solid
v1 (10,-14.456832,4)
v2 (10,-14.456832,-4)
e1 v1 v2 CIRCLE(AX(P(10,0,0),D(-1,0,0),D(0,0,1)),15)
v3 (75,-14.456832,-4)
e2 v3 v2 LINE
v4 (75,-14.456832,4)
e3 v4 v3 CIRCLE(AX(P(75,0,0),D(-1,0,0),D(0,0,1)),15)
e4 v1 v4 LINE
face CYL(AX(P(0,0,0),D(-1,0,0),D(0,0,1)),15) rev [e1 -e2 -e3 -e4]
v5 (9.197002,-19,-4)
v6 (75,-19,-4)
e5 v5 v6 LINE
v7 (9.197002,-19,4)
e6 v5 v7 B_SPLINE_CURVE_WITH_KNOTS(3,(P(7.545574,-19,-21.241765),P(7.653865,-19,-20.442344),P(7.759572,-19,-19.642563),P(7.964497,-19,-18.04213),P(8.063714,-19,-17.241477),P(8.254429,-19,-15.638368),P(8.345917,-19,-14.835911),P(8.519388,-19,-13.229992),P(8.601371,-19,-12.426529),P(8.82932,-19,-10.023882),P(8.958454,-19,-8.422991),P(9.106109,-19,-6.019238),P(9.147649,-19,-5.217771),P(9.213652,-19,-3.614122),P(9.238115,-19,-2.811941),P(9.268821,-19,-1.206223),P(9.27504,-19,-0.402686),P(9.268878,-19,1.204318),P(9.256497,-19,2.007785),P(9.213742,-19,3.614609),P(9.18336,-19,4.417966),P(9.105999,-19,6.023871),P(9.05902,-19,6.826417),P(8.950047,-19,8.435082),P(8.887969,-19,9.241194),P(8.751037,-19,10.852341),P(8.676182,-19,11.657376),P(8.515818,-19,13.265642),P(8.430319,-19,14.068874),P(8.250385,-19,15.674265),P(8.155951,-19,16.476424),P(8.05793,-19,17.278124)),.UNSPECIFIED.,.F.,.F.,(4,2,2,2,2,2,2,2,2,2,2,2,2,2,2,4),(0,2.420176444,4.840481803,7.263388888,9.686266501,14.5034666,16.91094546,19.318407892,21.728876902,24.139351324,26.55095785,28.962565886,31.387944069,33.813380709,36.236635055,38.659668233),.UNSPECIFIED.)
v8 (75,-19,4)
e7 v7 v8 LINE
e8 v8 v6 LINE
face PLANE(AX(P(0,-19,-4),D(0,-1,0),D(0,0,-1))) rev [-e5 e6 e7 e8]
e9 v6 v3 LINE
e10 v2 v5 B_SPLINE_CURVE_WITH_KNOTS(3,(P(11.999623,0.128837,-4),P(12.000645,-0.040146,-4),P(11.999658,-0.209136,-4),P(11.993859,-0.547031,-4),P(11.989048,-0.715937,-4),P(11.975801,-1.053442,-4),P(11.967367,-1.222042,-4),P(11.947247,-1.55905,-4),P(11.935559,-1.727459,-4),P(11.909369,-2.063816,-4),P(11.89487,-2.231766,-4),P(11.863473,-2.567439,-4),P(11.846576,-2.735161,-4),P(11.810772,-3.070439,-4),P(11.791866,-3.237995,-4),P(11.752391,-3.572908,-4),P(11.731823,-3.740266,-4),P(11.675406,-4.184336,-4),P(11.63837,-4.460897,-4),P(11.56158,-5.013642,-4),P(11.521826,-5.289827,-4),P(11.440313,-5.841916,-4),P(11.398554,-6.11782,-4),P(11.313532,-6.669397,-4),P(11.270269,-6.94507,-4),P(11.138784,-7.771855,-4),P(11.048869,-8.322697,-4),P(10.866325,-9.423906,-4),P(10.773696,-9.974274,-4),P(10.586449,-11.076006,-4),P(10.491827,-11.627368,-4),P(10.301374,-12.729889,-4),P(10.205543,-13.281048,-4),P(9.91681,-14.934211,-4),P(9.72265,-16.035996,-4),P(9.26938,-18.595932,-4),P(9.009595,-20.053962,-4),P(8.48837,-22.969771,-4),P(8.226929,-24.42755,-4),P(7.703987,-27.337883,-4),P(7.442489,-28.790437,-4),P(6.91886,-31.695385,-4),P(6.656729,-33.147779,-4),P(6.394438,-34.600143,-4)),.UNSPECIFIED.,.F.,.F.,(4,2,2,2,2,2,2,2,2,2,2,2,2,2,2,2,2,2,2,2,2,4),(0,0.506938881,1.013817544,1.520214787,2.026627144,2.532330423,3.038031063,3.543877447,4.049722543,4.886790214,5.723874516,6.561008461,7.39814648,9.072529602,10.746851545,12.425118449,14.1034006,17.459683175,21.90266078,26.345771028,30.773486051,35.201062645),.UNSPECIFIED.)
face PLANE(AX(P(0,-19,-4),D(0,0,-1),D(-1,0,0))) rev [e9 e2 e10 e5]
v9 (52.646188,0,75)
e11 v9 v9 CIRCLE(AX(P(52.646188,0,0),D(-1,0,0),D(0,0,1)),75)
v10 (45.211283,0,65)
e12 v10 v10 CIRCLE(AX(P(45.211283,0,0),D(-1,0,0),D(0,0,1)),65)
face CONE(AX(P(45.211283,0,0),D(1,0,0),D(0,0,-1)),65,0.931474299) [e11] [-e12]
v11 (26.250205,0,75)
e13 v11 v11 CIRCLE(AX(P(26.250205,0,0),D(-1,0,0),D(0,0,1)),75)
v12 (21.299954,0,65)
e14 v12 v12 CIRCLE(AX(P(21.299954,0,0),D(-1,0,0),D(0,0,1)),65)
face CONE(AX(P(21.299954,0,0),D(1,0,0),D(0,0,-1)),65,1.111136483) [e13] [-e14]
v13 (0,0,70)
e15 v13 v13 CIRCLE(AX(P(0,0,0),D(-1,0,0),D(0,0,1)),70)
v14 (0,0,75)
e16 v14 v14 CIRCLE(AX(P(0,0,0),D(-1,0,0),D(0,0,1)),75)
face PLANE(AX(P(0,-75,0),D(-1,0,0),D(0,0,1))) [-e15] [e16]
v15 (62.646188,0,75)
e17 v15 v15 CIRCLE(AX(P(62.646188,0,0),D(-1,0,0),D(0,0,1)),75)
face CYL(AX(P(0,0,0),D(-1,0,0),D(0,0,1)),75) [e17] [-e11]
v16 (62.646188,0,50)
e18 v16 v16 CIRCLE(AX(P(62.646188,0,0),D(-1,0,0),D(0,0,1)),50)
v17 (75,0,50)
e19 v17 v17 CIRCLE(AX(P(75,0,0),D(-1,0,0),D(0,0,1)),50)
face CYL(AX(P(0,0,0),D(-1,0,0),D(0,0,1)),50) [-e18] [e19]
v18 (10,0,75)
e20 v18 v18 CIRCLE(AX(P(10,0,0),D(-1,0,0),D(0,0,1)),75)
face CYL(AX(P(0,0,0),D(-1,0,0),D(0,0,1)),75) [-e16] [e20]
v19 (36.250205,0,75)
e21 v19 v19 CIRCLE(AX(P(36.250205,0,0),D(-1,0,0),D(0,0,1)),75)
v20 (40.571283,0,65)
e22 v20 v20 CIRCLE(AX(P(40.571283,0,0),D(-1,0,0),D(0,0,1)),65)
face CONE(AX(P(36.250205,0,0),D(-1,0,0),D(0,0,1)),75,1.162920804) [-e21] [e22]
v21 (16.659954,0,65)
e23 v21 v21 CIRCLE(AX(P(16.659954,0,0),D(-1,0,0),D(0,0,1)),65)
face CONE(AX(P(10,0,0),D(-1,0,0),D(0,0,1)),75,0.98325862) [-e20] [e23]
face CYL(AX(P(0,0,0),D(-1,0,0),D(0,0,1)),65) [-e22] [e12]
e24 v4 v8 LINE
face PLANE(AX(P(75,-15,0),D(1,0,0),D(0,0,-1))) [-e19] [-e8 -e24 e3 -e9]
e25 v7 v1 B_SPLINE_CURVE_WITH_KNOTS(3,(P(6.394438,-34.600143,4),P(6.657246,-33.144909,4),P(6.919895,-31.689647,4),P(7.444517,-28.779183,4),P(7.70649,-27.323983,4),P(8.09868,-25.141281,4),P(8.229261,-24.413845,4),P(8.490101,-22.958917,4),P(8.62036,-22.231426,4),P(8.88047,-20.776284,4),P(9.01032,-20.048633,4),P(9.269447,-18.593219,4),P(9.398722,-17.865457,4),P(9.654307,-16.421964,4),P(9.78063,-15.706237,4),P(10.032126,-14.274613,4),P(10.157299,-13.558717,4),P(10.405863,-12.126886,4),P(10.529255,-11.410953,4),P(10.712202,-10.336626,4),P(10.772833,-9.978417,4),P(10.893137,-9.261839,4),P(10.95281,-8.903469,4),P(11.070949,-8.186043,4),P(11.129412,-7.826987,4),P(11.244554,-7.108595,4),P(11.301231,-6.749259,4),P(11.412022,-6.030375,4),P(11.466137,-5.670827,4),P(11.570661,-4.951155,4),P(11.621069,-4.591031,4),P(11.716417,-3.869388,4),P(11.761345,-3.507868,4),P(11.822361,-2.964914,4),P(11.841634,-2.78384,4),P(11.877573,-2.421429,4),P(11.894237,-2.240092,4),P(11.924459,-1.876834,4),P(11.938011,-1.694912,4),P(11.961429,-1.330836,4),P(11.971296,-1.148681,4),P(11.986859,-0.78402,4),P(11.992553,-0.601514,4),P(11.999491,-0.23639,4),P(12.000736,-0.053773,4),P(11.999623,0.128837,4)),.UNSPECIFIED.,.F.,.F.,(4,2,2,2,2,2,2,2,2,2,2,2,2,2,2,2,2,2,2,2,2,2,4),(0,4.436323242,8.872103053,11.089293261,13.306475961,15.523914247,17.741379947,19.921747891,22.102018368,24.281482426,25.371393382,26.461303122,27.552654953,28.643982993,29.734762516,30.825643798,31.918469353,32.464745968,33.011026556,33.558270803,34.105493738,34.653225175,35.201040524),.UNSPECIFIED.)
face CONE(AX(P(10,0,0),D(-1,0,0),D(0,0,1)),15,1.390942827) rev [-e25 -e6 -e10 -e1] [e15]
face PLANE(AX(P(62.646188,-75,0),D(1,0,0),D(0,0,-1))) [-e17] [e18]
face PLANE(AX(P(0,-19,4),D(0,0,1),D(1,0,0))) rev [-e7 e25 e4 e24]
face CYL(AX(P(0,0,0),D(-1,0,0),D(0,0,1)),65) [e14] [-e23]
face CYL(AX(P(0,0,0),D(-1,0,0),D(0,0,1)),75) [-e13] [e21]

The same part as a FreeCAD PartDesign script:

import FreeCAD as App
import Part
import Sketcher


def add_polygon(sketch, points):
    """Adds a closed chain of lines whose ends are joined by coincident constraints."""
    first, n = sketch.GeometryCount, len(points)
    for a, b in zip(points, points[1:] + points[:1]):
        sketch.addGeometry(Part.LineSegment(App.Vector(*a, 0), App.Vector(*b, 0)), False)
    for i in range(n):
        sketch.addConstraint(Sketcher.Constraint("Coincident", first + i, 2, first + (i + 1) % n, 1))

doc = App.newDocument("Part")
body = doc.addObject("PartDesign::Body", "Body")

# Sketch on XY plane
sketch1 = doc.addObject("Sketcher::SketchObject", "Sketch")
body.addObject(sketch1)
sketch1.AttachmentSupport = (doc.XY_Plane, [""])
sketch1.MapMode = "FlatFace"
add_polygon(sketch1, [(75, -15), (10, -15), (0, -70), (0, -75), (10, -75), (16.659954, -65), (21.299954, -65), (26.250205, -75), (36.250205, -75), (40.571283, -65), (45.211283, -65), (52.646188, -75), (62.646188, -75), (62.646188, -50), (75, -50)])  # lines 0-14
sketch1.addConstraint([
    Sketcher.Constraint("Horizontal", 0),
    Sketcher.Constraint("Vertical", 2),
    Sketcher.Constraint("Horizontal", 3),
    Sketcher.Constraint("Horizontal", 5),
    Sketcher.Constraint("Horizontal", 7),
    Sketcher.Constraint("Horizontal", 9),
    Sketcher.Constraint("Horizontal", 11),
    Sketcher.Constraint("Vertical", 12),
    Sketcher.Constraint("Horizontal", 13),
    Sketcher.Constraint("Vertical", 14),
    Sketcher.Constraint("PointOnObject", 1, 2, -2),
    Sketcher.Constraint("Horizontal", 3, 2, 6, 2),
    Sketcher.Constraint("Horizontal", 5, 2, 8, 2),
    Sketcher.Constraint("Horizontal", 7, 2, 10, 2),
    Sketcher.Constraint("Vertical", 0, 2, 3, 2),
    Sketcher.Constraint("Equal", 3, 7),
    Sketcher.Constraint("Equal", 5, 9),
    Sketcher.Constraint("Equal", 7, 11),
    Sketcher.Constraint("DistanceX", 0, 2, 0, 1, 65.0),
    Sketcher.Constraint("DistanceX", 3, 1, 3, 2, 10.0),
    Sketcher.Constraint("DistanceY", 2, 2, 2, 1, 5.0),
    Sketcher.Constraint("DistanceY", 12, 1, 12, 2, 25.0),
    Sketcher.Constraint("DistanceY", 14, 1, 14, 2, 35.0),
    Sketcher.Constraint("DistanceY", 0, 2, -1, 1, 15.0),
    Sketcher.Constraint("DistanceY", 4, 2, -1, 1, 65.0),
    Sketcher.Constraint("DistanceX", 5, 1, 5, 2, 4.64),
    Sketcher.Constraint("DistanceX", 13, 1, 13, 2, 12.353812),
    Sketcher.Constraint("Distance", 4, 12.014782),
    Sketcher.Constraint("Distance", 6, 11.158181),
    Sketcher.Constraint("DistanceX", 5, 2, 8, 2, 19.271329),
])
revolution = doc.addObject("PartDesign::Revolution", "Revolution")
body.addObject(revolution)
revolution.Profile = sketch1
revolution.ReferenceAxis = (sketch1, ["H_Axis"])
revolution.Angle = 360

# Sketch on YZ plane
sketch2 = doc.addObject("Sketcher::SketchObject", "Sketch001")
body.addObject(sketch2)
sketch2.AttachmentSupport = (doc.YZ_Plane, [""])
sketch2.MapMode = "FlatFace"
sketch2.AttachmentOffset = App.Placement(App.Vector(0, 0, 75), App.Rotation())
add_polygon(sketch2, [(-11, 4), (-19, 4), (-19, -4), (-11, -4)])  # lines 0-3
sketch2.addConstraint([
    Sketcher.Constraint("Horizontal", 0),
    Sketcher.Constraint("Vertical", 1),
    Sketcher.Constraint("Horizontal", 2),
    Sketcher.Constraint("Vertical", 3),
    Sketcher.Constraint("Equal", 2, 1),
    Sketcher.Constraint("DistanceX", 0, 2, 0, 1, 8.0),
    Sketcher.Constraint("DistanceX", 0, 2, -1, 1, 19.0),
    Sketcher.Constraint("DistanceY", -1, 1, 0, 2, 4.0),
])
pocket1 = doc.addObject("PartDesign::Pocket", "Pocket")
body.addObject(pocket1)
pocket1.Profile = sketch2
pocket1.Type = "ThroughAll"

doc.recompute()
